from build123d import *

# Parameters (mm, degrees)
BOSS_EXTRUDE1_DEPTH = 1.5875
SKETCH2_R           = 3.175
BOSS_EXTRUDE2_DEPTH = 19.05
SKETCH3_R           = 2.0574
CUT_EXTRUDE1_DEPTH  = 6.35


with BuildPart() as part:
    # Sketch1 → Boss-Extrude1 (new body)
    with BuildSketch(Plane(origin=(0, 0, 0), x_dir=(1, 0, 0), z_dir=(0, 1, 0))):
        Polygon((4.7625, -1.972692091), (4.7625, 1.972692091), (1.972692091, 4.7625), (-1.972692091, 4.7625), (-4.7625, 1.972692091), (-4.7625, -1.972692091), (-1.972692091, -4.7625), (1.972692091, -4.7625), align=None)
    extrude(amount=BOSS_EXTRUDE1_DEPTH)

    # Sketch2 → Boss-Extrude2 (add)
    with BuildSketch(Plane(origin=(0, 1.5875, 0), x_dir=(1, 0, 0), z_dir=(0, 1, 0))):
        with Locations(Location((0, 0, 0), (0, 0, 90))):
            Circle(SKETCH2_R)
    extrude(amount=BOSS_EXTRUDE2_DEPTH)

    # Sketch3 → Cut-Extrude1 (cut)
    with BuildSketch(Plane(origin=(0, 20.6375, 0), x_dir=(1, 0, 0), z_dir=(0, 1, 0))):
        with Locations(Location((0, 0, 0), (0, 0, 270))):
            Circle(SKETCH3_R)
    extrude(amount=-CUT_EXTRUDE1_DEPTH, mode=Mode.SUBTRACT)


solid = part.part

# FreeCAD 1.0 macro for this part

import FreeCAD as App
import Part
import Sketcher

V = App.Vector
Q = App.Units.Quantity

doc = App.newDocument("Part")
body = doc.addObject("PartDesign::Body", "Body")

sketch1 = doc.addObject("Sketcher::SketchObject", "Sketch")
body.addObject(sketch1)
sketch1.AttachmentSupport = (doc.XZ_Plane, [""])
sketch1.MapMode = "FlatFace"
sketch1.addGeometry(Part.LineSegment(V(4.8, 2, 0), V(4.8, -2, 0)), False)
sketch1.addGeometry(Part.LineSegment(V(4.8, -2, 0), V(2, -4.8, 0)), False)
sketch1.addGeometry(Part.LineSegment(V(2, -4.8, 0), V(-2, -4.8, 0)), False)
sketch1.addGeometry(Part.LineSegment(V(-2, -4.8, 0), V(-4.8, -2, 0)), False)
sketch1.addGeometry(Part.LineSegment(V(-4.8, -2, 0), V(-4.8, 2, 0)), False)
sketch1.addGeometry(Part.LineSegment(V(-4.8, 2, 0), V(-2, 4.8, 0)), False)
sketch1.addGeometry(Part.LineSegment(V(-2, 4.8, 0), V(2, 4.8, 0)), False)
sketch1.addGeometry(Part.LineSegment(V(2, 4.8, 0), V(4.8, 2, 0)), False)
sketch1.addConstraint(Sketcher.Constraint("Coincident", 0, 2, 1, 1))
sketch1.addConstraint(Sketcher.Constraint("Coincident", 1, 2, 2, 1))
sketch1.addConstraint(Sketcher.Constraint("Coincident", 2, 2, 3, 1))
sketch1.addConstraint(Sketcher.Constraint("Coincident", 3, 2, 4, 1))
sketch1.addConstraint(Sketcher.Constraint("Coincident", 4, 2, 5, 1))
sketch1.addConstraint(Sketcher.Constraint("Coincident", 5, 2, 6, 1))
sketch1.addConstraint(Sketcher.Constraint("Coincident", 6, 2, 7, 1))
sketch1.addConstraint(Sketcher.Constraint("Coincident", 7, 2, 0, 1))
sketch1.addConstraint(Sketcher.Constraint("Vertical", 0))
sketch1.addConstraint(Sketcher.Constraint("Horizontal", 2))
sketch1.addConstraint(Sketcher.Constraint("Vertical", 4))
sketch1.addConstraint(Sketcher.Constraint("Horizontal", 6))
sketch1.addConstraint(Sketcher.Constraint("Symmetric", 0, 2, 4, 2, -1, 1))
sketch1.addConstraint(Sketcher.Constraint("Symmetric", 1, 2, 5, 2, -1, 1))
sketch1.addConstraint(Sketcher.Constraint("Perpendicular", 1, 3))
sketch1.addConstraint(Sketcher.Constraint("Perpendicular", 5, 7))
sketch1.addConstraint(Sketcher.Constraint("Horizontal", 0, 2, 3, 2))
sketch1.addConstraint(Sketcher.Constraint("Horizontal", 4, 2, 7, 2))
sketch1.addConstraint(Sketcher.Constraint("Vertical", 2, 2, 5, 2))
sketch1.addConstraint(Sketcher.Constraint("Equal", 6, 0))
sketch1.addConstraint(Sketcher.Constraint("DistanceX", -1, 1, 0, 2, Q("0.1875 in")))
sketch1.addConstraint(Sketcher.Constraint("DistanceX", 2, 2, 2, 1, Q("3.945384 mm")))
pad1 = doc.addObject("PartDesign::Pad", "Pad")
body.addObject(pad1)
pad1.Profile = sketch1
pad1.Length = Q("0.0625 in")
pad1.Reversed = True

sketch2 = doc.addObject("Sketcher::SketchObject", "Sketch001")
body.addObject(sketch2)
sketch2.AttachmentSupport = (doc.XZ_Plane, [""])
sketch2.MapMode = "FlatFace"
sketch2.AttachmentOffset = App.Placement(V(0, 0, -0.0625 * 25.4), App.Rotation())
sketch2.addGeometry(Part.Circle(V(0, 0, 0), V(0, 0, 1), 3.2), False)
sketch2.addConstraint(Sketcher.Constraint("Coincident", 0, 3, -1, 1))
sketch2.addConstraint(Sketcher.Constraint("Diameter", 0, Q("0.25 in")))
pad2 = doc.addObject("PartDesign::Pad", "Pad001")
body.addObject(pad2)
pad2.Profile = sketch2
pad2.Length = Q("0.75 in")
pad2.Reversed = True

sketch3 = doc.addObject("Sketcher::SketchObject", "Sketch002")
body.addObject(sketch3)
sketch3.AttachmentSupport = (doc.XZ_Plane, [""])
sketch3.MapMode = "FlatFace"
sketch3.AttachmentOffset = App.Placement(V(0, 0, -0.8125 * 25.4), App.Rotation())
sketch3.addGeometry(Part.Circle(V(0, 0, 0), V(0, 0, 1), 2.1), False)
sketch3.addConstraint(Sketcher.Constraint("Coincident", 0, 3, -1, 1))
sketch3.addConstraint(Sketcher.Constraint("Diameter", 0, Q("0.162 in")))
pocket1 = doc.addObject("PartDesign::Pocket", "Pocket")
body.addObject(pocket1)
pocket1.Profile = sketch3
pocket1.Length = Q("0.25 in")
pocket1.Reversed = True

doc.recompute()
